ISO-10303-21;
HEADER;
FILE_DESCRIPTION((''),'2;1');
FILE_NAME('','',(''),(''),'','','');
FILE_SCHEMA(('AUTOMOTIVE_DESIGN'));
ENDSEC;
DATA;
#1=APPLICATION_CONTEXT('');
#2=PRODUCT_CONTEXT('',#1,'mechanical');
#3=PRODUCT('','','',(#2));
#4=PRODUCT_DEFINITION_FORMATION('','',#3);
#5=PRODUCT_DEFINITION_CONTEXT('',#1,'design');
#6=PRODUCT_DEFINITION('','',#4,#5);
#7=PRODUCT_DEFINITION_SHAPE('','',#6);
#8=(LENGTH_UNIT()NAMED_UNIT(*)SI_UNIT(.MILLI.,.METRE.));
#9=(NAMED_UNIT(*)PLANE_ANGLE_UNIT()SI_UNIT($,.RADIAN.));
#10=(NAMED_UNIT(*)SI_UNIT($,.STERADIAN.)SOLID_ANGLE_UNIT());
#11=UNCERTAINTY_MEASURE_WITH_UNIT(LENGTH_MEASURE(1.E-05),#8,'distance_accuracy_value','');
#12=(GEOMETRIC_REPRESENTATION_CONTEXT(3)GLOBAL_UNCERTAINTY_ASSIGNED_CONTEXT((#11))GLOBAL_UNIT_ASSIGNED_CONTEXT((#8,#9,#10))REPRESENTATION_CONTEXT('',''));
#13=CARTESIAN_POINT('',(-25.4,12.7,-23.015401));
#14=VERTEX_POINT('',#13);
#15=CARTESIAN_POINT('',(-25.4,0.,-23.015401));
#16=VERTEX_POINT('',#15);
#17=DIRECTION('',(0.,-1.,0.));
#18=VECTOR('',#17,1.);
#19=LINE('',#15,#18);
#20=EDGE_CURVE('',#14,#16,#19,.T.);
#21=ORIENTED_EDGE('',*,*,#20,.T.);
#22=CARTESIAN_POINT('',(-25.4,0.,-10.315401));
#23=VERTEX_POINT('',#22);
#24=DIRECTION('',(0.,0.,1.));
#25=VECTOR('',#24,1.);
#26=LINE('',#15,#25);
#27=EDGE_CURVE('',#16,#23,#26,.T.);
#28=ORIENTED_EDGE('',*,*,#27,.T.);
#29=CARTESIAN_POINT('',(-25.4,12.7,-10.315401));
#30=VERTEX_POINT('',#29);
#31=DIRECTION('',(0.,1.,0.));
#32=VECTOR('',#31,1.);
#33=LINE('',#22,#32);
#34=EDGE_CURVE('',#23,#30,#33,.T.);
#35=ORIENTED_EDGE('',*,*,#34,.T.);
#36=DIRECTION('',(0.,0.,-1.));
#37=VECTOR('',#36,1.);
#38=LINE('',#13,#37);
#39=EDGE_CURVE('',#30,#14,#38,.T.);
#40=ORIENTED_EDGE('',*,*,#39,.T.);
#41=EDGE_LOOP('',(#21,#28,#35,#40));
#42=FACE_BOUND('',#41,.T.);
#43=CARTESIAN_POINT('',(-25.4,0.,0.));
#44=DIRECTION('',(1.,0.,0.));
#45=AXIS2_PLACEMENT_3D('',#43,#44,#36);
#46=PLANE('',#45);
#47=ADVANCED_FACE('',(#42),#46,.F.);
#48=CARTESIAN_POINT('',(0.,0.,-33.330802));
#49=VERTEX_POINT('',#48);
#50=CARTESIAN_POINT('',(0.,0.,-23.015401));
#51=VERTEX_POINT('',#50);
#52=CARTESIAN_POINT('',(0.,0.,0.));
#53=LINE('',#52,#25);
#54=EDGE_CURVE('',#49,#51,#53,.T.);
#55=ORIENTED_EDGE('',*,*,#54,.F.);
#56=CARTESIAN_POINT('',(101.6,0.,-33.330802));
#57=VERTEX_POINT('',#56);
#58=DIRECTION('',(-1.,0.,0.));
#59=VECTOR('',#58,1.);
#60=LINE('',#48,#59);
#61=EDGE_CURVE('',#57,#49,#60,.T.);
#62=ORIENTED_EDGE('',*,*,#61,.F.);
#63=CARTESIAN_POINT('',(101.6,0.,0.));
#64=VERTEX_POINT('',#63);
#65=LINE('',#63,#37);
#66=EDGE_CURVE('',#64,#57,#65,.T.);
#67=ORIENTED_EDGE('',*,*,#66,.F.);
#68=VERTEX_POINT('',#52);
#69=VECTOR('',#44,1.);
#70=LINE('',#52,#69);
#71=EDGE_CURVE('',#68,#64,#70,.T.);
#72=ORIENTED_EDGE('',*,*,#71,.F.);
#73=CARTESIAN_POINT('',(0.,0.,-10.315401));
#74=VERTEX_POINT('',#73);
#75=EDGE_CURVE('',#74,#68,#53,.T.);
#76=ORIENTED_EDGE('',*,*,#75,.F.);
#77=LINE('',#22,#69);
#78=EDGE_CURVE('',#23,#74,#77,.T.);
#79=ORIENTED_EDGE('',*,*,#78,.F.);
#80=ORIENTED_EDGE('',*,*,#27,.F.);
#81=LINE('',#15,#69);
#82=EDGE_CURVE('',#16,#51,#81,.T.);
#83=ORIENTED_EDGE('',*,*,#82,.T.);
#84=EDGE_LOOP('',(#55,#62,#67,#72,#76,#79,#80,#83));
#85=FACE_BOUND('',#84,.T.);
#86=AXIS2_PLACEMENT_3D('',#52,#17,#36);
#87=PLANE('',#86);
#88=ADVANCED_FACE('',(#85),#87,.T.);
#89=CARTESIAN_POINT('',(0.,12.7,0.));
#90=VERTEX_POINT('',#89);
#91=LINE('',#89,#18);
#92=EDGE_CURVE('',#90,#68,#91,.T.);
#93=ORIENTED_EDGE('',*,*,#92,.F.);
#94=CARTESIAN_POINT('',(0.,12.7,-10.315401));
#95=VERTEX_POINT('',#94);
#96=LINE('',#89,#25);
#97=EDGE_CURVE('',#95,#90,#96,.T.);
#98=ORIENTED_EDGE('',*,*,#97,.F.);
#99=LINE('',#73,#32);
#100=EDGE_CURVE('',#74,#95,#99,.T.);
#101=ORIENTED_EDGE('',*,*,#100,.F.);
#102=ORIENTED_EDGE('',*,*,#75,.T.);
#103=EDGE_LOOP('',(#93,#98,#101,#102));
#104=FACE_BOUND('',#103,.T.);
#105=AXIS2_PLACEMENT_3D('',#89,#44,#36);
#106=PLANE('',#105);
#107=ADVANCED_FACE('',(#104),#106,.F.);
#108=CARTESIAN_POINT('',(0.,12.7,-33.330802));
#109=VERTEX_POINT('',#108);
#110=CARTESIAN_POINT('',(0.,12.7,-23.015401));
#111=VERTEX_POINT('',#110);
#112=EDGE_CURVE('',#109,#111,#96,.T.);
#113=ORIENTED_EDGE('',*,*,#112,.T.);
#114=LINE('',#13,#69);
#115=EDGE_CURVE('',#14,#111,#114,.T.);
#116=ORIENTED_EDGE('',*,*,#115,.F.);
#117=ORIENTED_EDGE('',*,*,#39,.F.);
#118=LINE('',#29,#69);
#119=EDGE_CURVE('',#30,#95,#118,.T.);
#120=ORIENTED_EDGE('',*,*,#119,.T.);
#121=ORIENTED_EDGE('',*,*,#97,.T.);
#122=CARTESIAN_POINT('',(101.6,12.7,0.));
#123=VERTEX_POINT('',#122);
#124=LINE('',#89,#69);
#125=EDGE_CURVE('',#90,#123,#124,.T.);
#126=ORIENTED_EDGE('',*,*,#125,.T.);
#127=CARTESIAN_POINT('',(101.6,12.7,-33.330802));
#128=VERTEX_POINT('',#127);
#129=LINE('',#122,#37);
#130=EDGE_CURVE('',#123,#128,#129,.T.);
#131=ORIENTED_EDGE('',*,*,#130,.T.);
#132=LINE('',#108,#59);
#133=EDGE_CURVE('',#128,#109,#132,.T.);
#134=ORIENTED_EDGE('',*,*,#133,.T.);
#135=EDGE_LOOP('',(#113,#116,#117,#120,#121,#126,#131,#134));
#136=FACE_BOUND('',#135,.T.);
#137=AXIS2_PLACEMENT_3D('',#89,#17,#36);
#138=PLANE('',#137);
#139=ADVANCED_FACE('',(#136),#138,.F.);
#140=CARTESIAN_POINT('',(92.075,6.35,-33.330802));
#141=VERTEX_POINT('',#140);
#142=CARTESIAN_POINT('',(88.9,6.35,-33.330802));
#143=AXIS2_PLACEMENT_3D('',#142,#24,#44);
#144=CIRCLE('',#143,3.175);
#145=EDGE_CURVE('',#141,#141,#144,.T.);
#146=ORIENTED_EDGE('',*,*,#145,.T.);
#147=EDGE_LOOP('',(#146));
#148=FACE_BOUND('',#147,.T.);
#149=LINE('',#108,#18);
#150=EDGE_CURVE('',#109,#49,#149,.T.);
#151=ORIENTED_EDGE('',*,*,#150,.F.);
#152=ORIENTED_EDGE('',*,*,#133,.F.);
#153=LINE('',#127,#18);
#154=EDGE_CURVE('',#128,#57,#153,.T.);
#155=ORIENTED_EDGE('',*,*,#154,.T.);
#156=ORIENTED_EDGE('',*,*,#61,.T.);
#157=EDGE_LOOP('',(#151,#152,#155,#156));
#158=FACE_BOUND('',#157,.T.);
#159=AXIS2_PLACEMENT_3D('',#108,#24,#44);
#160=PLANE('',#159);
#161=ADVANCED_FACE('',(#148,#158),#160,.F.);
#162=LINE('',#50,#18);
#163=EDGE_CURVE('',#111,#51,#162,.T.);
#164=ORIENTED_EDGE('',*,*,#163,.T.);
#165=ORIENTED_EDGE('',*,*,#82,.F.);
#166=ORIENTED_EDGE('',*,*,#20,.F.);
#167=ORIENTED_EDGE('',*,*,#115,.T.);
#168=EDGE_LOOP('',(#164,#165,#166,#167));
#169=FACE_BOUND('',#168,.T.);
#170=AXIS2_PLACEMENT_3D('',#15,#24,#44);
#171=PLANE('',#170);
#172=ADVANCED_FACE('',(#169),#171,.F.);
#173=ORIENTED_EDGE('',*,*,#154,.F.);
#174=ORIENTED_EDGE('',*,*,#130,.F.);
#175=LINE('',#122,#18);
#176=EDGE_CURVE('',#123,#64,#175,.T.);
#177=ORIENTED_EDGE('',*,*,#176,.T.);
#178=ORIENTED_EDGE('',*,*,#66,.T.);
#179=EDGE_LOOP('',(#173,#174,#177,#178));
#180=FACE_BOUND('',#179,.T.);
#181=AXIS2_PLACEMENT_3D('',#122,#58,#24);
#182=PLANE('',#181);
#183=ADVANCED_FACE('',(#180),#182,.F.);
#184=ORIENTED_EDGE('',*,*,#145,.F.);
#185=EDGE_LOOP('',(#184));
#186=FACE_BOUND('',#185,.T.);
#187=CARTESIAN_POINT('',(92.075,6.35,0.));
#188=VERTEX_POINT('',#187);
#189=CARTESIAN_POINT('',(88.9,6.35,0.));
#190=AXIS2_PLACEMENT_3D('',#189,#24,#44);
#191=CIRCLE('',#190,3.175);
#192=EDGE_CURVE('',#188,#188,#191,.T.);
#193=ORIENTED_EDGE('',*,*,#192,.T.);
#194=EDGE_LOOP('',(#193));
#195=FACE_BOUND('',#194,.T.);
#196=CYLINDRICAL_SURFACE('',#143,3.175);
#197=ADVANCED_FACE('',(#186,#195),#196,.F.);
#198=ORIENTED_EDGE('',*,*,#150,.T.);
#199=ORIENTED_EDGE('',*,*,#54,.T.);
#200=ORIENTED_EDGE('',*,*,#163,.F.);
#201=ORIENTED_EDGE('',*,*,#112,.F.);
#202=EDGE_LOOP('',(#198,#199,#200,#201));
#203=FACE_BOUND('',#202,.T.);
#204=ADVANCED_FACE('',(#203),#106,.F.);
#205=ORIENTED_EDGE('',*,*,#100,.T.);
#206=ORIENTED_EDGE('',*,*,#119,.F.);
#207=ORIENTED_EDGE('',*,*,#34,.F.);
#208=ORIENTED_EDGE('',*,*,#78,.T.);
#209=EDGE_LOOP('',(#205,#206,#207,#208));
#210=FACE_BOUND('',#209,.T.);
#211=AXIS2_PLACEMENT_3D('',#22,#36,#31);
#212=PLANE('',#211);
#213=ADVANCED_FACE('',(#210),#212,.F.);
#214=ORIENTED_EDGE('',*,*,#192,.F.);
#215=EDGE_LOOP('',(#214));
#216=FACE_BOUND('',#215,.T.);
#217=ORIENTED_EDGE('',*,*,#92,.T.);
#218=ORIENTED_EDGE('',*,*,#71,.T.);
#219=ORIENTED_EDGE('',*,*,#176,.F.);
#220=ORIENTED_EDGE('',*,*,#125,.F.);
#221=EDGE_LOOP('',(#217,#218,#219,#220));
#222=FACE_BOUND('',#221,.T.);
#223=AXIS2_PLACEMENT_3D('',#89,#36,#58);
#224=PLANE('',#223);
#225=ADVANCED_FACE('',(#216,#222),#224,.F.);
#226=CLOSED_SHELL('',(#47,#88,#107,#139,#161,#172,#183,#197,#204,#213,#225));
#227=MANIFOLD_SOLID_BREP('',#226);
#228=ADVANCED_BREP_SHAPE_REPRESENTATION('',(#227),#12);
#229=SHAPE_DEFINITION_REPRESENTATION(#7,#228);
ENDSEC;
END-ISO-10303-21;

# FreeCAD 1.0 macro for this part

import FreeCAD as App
import Part
import Sketcher
Q = App.Units.Quantity

doc = App.newDocument("Part")
body = doc.addObject("PartDesign::Body", "Body")

# Sketch on XZ plane
sketch1 = body.newObject("Sketcher::SketchObject", "Sketch")
sketch1.AttachmentSupport = (doc.getObject("XZ_Plane"), [""])
sketch1.MapMode = "FlatFace"
sketch1.addGeometry([
    Part.LineSegment(App.Vector(0, -33.330802, 0), App.Vector(0, 0, 0)),
    Part.LineSegment(App.Vector(0, 0, 0), App.Vector(101.6, 0, 0)),
    Part.LineSegment(App.Vector(101.6, 0, 0), App.Vector(101.6, -33.330802, 0)),
    Part.LineSegment(App.Vector(101.6, -33.330802, 0), App.Vector(0, -33.330802, 0)),
], False)
sketch1.addConstraint([
    Sketcher.Constraint("Coincident", 0, 2, 1, 1),
    Sketcher.Constraint("Coincident", 1, 2, 2, 1),
    Sketcher.Constraint("Coincident", 2, 2, 3, 1),
    Sketcher.Constraint("Coincident", 3, 2, 0, 1),
    Sketcher.Constraint("Vertical", 0),
    Sketcher.Constraint("Horizontal", 1),
    Sketcher.Constraint("Vertical", 2),
    Sketcher.Constraint("Horizontal", 3),
    Sketcher.Constraint("Coincident", 0, 2, -1, 1),
    Sketcher.Constraint("DistanceX", 1, 1, 1, 2, Q("4 in")),
    Sketcher.Constraint("DistanceY", 0, 1, 0, 2, Q("33.330802 mm")),
])
pad1 = body.newObject("PartDesign::Pad", "Pad")
pad1.Profile = sketch1
pad1.Length = Q("0.5 in")
pad1.Reversed = True

# Sketch on YZ plane
sketch2 = body.newObject("Sketcher::SketchObject", "Sketch001")
sketch2.AttachmentSupport = (doc.getObject("YZ_Plane"), [""])
sketch2.MapMode = "FlatFace"
sketch2.addGeometry([
    Part.LineSegment(App.Vector(12.7, -23.015401, 0), App.Vector(0, -23.015401, 0)),
    Part.LineSegment(App.Vector(0, -23.015401, 0), App.Vector(0, -10.315401, 0)),
    Part.LineSegment(App.Vector(0, -10.315401, 0), App.Vector(12.7, -10.315401, 0)),
    Part.LineSegment(App.Vector(12.7, -10.315401, 0), App.Vector(12.7, -23.015401, 0)),
], False)
sketch2.addConstraint([
    Sketcher.Constraint("Coincident", 0, 2, 1, 1),
    Sketcher.Constraint("Coincident", 1, 2, 2, 1),
    Sketcher.Constraint("Coincident", 2, 2, 3, 1),
    Sketcher.Constraint("Coincident", 3, 2, 0, 1),
    Sketcher.Constraint("Horizontal", 0),
    Sketcher.Constraint("Vertical", 1),
    Sketcher.Constraint("Horizontal", 2),
    Sketcher.Constraint("Vertical", 3),
    Sketcher.Constraint("PointOnObject", 0, 2, -2),
    Sketcher.Constraint("Equal", 2, 1),
    Sketcher.Constraint("DistanceX", 0, 2, 0, 1, Q("0.5 in")),
    Sketcher.Constraint("DistanceY", 0, 2, -1, 1, Q("23.015401 mm")),
])
pad2 = body.newObject("PartDesign::Pad", "Pad001")
pad2.Profile = sketch2
pad2.Length = Q("1 in")
pad2.Reversed = True

# Sketch on XY plane
sketch3 = body.newObject("Sketcher::SketchObject", "Sketch002")
sketch3.AttachmentSupport = (doc.getObject("XY_Plane"), [""])
sketch3.MapMode = "FlatFace"
sketch3.addGeometry(Part.Circle(App.Vector(88.9, 6.35, 0), App.Vector(0, 0, 1), 3.175), False)
sketch3.addConstraint([
    Sketcher.Constraint("Diameter", 0, Q("0.25 in")),
    Sketcher.Constraint("DistanceX", -1, 1, 0, 3, Q("3.5 in")),
    Sketcher.Constraint("DistanceY", -1, 1, 0, 3, Q("0.25 in")),
])
pocket1 = body.newObject("PartDesign::Pocket", "Pocket")
pocket1.Profile = sketch3
pocket1.Type = "ThroughAll"

doc.recompute()
